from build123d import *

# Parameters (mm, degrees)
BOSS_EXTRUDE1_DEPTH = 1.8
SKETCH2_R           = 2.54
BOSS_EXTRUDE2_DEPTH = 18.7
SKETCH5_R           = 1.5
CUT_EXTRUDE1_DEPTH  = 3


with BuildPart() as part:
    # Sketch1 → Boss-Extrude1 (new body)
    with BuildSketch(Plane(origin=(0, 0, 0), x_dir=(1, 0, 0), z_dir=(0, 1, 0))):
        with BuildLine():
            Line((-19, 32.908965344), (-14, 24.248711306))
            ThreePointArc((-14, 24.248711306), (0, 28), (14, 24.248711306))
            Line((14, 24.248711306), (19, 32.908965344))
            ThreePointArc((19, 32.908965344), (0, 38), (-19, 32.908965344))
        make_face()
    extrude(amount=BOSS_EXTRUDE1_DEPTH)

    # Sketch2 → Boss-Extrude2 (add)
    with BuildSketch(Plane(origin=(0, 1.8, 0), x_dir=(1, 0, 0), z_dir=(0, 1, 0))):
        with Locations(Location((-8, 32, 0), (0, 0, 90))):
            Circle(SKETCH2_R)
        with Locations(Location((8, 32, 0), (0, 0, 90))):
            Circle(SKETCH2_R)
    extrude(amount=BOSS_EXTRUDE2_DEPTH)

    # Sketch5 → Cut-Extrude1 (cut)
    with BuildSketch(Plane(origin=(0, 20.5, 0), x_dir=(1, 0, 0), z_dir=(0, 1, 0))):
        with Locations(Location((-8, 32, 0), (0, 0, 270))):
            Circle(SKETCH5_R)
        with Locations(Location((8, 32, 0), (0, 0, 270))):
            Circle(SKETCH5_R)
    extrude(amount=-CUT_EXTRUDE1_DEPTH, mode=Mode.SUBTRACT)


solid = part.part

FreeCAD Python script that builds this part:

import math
import FreeCAD as App
import Part
import Sketcher

V = App.Vector
Q = App.Units.Quantity

doc = App.newDocument("Part")
body = doc.addObject("PartDesign::Body", "Body")

# Sketch on XZ plane
sketch1 = body.newObject("Sketcher::SketchObject", "Sketch")
sketch1.AttachmentSupport = (doc.getObject("XZ_Plane"), [""])
sketch1.MapMode = "FlatFace"
sketch1.addGeometry([
    Part.LineSegment(V(-19, -33, 0), V(-14, -24, 0)),
    Part.ArcOfCircle(Part.Circle(V(0, 0, 0), V(0, 0, 1), 28), math.radians(-120), math.radians(-60)),
    Part.LineSegment(V(14, -24, 0), V(19, -33, 0)),
    Part.ArcOfCircle(Part.Circle(V(0, 0, 0), V(0, 0, 1), 38), math.radians(-120), math.radians(-60)),
], False)
sketch1.addConstraint([
    Sketcher.Constraint("Coincident", 0, 2, 1, 1),
    Sketcher.Constraint("Coincident", 1, 2, 2, 1),
    Sketcher.Constraint("Coincident", 2, 2, 3, 2),
    Sketcher.Constraint("Coincident", 3, 1, 0, 1),
    Sketcher.Constraint("Coincident", 1, 3, -1, 1),
    Sketcher.Constraint("Coincident", 3, 3, -1, 1),
    Sketcher.Constraint("Horizontal", 0, 2, 1, 2),
    Sketcher.Constraint("Horizontal", 2, 2, 3, 1),
    Sketcher.Constraint("Radius", 1, Q("28 mm")),
    Sketcher.Constraint("Radius", 3, Q("38 mm")),
    Sketcher.Constraint("Angle", 0, Q("60 deg")),
    Sketcher.Constraint("DistanceX", 0, 2, -1, 1, Q("14 mm")),
])
pad1 = body.newObject("PartDesign::Pad", "Pad")
pad1.Profile = sketch1
pad1.Length = 1.8
pad1.Reversed = True

# Sketch on XZ plane
sketch2 = body.newObject("Sketcher::SketchObject", "Sketch001")
sketch2.AttachmentSupport = (doc.getObject("XZ_Plane"), [""])
sketch2.MapMode = "FlatFace"
sketch2.AttachmentOffset = App.Placement(V(0, 0, -1.8), App.Rotation())
sketch2.addGeometry([
    Part.Circle(V(-8, -32, 0), V(0, 0, 1), 2.5),
    Part.Circle(V(8, -32, 0), V(0, 0, 1), 2.5),
], False)
sketch2.addConstraint([
    Sketcher.Constraint("Equal", 0, 1),
    Sketcher.Constraint("Symmetric", 0, 3, 1, 3, -2),
    Sketcher.Constraint("Diameter", 0, Q("5.08 mm")),
    Sketcher.Constraint("DistanceX", 0, 3, -1, 1, Q("8 mm")),
    Sketcher.Constraint("DistanceY", 0, 3, -1, 1, Q("32 mm")),
])
pad2 = body.newObject("PartDesign::Pad", "Pad001")
pad2.Profile = sketch2
pad2.Length = 18.7
pad2.Reversed = True

# Sketch on XZ plane
sketch3 = body.newObject("Sketcher::SketchObject", "Sketch002")
sketch3.AttachmentSupport = (doc.getObject("XZ_Plane"), [""])
sketch3.MapMode = "FlatFace"
sketch3.AttachmentOffset = App.Placement(V(0, 0, -20.5), App.Rotation())
sketch3.addGeometry([
    Part.Circle(V(-8, -32, 0), V(0, 0, 1), 1.5),
    Part.Circle(V(8, -32, 0), V(0, 0, 1), 1.5),
], False)
sketch3.addConstraint([
    Sketcher.Constraint("Equal", 0, 1),
    Sketcher.Constraint("Symmetric", 0, 3, 1, 3, -2),
    Sketcher.Constraint("Diameter", 0, Q("3 mm")),
    Sketcher.Constraint("DistanceX", 0, 3, -1, 1, Q("8 mm")),
    Sketcher.Constraint("DistanceY", 0, 3, -1, 1, Q("32 mm")),
])
pocket1 = body.newObject("PartDesign::Pocket", "Pocket")
pocket1.Profile = sketch3
pocket1.Length = 3
pocket1.Reversed = True

doc.recompute()
